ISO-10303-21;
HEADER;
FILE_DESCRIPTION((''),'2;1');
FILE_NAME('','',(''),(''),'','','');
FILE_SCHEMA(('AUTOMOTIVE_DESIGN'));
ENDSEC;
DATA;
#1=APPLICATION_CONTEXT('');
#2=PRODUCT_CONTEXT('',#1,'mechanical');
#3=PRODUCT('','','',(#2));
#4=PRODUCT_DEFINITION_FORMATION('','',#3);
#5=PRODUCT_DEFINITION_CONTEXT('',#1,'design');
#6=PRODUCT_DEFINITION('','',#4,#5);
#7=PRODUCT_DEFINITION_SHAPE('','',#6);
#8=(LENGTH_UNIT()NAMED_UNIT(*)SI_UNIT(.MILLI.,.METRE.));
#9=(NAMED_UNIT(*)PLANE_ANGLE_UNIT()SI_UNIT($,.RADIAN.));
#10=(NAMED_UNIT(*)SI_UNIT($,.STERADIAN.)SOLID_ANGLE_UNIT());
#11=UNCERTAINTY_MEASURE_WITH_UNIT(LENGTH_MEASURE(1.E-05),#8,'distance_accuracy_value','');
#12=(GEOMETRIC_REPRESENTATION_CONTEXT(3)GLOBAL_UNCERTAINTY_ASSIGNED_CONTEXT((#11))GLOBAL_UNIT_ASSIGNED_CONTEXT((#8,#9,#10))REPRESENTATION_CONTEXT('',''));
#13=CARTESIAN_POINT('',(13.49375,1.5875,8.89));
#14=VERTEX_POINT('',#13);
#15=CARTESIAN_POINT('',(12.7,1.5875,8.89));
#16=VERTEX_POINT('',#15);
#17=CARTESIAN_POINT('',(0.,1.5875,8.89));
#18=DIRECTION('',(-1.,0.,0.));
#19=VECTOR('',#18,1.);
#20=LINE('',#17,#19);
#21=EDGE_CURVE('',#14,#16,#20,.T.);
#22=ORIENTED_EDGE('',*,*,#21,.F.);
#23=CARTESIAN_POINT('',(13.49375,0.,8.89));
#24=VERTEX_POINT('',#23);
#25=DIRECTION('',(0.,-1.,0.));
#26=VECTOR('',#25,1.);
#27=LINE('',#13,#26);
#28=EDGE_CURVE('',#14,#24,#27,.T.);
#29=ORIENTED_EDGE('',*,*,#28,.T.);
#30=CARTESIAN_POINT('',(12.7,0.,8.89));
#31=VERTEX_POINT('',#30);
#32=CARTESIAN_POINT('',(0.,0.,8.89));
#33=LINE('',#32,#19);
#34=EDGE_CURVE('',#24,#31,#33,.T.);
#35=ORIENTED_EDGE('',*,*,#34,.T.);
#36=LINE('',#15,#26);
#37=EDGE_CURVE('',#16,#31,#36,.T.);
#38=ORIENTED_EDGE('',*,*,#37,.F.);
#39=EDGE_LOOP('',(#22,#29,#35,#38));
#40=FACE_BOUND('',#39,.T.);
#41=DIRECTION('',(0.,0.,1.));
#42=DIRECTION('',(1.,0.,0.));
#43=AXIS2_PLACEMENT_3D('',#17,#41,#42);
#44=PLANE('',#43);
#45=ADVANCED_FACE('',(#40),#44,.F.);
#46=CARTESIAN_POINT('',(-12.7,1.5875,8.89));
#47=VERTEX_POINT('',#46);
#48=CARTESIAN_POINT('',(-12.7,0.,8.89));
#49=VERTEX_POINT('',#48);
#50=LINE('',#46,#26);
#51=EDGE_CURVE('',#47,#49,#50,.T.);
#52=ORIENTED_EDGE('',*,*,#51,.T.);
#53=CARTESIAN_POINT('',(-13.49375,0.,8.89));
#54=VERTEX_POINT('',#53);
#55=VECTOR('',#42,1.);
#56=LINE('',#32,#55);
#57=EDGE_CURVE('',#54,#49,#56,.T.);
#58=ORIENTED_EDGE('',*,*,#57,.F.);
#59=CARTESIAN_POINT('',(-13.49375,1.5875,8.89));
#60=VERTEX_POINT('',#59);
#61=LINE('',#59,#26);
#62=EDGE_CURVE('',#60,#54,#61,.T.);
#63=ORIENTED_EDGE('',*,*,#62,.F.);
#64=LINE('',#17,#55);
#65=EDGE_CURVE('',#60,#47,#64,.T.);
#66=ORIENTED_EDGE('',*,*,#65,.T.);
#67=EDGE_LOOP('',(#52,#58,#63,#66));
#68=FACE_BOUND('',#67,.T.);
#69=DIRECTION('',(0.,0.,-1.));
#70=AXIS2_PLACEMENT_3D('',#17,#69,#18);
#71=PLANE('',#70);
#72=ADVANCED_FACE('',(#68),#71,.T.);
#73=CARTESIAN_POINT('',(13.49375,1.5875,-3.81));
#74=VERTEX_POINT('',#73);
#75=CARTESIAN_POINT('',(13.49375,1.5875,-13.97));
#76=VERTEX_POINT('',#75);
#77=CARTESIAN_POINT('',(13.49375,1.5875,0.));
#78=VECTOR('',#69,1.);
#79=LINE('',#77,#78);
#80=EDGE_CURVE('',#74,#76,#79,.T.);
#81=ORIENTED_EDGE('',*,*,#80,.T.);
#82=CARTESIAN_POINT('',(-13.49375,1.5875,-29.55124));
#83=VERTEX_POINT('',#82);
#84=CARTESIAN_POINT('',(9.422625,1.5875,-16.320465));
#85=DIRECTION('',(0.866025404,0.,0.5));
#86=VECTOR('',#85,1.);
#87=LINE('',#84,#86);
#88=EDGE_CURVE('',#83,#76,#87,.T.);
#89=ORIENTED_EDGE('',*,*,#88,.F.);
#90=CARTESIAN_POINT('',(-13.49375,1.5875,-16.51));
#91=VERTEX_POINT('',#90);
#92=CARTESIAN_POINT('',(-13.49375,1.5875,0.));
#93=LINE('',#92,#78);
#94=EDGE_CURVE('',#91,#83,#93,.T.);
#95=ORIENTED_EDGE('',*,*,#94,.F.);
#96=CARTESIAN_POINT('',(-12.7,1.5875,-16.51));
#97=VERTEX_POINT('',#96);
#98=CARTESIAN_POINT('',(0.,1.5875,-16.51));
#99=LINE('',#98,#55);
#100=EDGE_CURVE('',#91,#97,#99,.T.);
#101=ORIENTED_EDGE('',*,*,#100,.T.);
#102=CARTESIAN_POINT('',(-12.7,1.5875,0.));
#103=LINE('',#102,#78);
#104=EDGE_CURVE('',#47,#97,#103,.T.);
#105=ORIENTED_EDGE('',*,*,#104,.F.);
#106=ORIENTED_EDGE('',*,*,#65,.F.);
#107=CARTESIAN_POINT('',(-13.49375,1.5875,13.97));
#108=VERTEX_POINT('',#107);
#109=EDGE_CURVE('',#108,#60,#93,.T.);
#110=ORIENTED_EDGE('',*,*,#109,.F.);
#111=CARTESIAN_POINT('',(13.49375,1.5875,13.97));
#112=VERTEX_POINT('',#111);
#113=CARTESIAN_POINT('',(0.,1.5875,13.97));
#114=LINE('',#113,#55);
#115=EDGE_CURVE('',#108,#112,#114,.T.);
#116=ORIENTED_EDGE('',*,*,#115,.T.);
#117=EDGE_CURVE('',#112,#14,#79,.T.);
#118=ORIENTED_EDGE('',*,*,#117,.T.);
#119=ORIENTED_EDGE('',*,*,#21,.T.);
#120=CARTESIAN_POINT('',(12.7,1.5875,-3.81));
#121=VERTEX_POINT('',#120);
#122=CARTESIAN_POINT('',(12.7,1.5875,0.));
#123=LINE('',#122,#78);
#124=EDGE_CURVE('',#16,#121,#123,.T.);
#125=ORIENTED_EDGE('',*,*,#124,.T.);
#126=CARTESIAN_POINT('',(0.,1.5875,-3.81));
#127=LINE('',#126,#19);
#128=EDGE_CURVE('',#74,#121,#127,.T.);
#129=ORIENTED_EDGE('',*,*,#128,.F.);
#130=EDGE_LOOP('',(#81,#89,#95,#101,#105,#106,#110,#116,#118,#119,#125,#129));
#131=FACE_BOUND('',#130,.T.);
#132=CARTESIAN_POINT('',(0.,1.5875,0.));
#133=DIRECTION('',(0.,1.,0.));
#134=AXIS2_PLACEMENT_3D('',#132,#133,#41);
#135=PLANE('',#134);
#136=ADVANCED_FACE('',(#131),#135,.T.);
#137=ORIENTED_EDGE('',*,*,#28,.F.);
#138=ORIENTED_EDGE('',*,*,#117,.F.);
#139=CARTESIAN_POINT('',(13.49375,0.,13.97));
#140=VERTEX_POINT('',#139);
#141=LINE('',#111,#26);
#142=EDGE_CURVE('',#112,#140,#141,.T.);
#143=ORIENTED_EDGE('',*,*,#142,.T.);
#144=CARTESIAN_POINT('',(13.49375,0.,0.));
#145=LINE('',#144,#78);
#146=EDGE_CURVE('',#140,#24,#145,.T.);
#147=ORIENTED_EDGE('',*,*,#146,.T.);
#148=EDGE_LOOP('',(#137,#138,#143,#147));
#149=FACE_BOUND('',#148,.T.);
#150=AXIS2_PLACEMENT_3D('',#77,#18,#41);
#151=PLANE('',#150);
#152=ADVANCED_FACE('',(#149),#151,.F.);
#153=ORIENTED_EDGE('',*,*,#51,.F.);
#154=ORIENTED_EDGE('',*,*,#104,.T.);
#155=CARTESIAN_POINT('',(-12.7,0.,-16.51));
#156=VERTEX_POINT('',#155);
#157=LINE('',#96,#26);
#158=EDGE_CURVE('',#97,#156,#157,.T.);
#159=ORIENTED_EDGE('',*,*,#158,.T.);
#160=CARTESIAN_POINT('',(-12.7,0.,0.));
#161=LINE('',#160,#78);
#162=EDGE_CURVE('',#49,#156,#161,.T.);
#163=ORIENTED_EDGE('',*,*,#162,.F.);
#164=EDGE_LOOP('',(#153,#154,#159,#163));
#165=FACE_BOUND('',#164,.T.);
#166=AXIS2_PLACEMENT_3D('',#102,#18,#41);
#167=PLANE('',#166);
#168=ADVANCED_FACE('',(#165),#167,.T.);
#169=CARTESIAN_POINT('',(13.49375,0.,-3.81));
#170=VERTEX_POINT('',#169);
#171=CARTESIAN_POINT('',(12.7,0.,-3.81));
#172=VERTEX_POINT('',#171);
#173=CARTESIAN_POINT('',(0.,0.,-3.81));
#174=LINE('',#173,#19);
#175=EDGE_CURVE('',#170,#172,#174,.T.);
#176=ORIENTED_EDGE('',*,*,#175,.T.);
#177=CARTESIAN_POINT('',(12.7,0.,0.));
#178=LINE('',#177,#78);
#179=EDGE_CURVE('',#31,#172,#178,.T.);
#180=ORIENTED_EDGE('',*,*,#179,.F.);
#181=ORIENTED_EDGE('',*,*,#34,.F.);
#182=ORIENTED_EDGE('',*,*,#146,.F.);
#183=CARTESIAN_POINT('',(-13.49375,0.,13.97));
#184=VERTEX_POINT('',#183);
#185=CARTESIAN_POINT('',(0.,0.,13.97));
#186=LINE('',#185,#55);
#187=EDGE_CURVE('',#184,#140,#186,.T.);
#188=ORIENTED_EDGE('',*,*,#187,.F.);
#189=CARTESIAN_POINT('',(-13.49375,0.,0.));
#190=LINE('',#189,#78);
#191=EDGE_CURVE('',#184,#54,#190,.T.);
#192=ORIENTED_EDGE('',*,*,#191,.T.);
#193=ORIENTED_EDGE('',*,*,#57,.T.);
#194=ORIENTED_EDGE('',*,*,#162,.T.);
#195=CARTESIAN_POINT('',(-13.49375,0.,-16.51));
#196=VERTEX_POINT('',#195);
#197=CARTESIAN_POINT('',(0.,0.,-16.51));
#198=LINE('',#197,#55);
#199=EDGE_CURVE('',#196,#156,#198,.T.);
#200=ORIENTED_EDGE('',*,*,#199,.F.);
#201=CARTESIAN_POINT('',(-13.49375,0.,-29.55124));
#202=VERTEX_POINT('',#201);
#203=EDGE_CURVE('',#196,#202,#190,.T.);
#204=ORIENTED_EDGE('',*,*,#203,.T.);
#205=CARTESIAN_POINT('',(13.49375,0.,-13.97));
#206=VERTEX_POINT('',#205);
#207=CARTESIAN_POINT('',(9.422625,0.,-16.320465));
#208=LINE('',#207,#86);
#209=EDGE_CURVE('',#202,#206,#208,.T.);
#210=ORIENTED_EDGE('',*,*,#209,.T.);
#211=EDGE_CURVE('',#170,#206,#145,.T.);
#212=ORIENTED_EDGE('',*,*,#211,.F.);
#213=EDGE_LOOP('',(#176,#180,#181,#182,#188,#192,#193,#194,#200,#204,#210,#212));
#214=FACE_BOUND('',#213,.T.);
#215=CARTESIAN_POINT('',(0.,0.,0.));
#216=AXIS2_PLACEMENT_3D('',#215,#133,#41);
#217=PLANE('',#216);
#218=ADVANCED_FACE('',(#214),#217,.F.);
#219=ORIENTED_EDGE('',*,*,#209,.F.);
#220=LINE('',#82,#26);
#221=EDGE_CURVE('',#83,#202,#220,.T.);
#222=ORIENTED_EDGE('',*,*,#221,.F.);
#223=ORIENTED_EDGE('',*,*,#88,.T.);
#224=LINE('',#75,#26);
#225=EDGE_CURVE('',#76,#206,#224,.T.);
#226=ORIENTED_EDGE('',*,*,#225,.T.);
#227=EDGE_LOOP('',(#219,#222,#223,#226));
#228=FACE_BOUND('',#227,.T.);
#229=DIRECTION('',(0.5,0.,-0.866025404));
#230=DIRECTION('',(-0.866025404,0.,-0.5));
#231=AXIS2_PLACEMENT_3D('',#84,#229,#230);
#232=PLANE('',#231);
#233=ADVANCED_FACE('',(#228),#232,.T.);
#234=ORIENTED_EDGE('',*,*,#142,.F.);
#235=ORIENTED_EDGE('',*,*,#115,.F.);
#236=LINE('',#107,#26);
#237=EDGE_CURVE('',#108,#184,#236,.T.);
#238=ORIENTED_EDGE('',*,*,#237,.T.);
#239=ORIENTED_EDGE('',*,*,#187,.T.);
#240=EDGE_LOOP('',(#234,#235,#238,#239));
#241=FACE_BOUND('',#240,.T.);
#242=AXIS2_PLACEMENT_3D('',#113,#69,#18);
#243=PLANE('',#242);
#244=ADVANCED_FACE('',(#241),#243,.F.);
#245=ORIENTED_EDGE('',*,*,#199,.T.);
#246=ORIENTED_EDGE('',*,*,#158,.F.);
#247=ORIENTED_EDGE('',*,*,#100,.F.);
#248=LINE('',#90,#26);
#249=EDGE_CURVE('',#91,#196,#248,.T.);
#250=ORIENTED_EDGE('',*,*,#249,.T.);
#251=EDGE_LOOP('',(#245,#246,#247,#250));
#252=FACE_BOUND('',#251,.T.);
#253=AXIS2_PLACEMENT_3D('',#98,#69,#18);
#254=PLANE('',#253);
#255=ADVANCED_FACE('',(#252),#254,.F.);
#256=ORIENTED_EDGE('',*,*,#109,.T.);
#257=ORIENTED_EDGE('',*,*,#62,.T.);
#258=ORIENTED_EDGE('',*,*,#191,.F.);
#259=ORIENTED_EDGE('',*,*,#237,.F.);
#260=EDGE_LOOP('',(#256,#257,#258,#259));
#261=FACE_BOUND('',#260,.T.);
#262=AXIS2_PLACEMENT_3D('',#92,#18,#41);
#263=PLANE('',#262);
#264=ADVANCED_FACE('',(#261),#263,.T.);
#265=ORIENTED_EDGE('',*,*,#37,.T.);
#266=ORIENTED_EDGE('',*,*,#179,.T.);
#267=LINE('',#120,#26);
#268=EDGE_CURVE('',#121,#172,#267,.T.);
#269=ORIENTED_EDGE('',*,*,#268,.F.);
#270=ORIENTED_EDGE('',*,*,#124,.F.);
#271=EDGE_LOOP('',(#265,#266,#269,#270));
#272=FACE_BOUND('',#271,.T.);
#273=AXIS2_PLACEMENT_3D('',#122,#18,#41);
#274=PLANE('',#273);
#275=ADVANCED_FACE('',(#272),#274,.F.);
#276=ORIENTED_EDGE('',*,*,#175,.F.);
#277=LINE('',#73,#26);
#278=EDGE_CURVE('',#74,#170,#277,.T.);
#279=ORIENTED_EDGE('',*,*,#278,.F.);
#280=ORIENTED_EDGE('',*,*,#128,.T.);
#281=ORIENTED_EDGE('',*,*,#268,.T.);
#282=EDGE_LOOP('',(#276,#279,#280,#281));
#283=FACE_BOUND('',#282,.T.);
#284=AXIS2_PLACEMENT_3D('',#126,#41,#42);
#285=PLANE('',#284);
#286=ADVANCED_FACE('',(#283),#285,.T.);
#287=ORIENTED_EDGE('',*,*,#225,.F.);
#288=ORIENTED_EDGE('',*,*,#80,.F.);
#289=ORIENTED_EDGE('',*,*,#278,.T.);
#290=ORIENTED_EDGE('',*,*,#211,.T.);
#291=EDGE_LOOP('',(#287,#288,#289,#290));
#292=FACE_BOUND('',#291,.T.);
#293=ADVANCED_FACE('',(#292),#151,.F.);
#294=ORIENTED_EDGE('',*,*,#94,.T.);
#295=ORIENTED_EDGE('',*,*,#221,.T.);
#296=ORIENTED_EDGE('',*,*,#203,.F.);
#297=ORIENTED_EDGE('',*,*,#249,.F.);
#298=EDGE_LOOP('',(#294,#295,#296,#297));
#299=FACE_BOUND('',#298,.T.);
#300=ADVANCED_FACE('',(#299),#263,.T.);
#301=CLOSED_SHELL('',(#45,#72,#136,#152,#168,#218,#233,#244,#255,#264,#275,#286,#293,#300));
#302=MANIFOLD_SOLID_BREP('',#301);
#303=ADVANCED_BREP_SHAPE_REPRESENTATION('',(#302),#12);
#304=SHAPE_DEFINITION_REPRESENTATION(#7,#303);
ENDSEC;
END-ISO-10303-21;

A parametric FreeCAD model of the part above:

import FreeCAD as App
import Part
import Sketcher
from FreeCAD import Vector
Q = App.Units.Quantity


def add_polygon(sketch, points):
    """Adds a closed chain of lines whose ends are joined by coincident constraints."""
    first, n = sketch.GeometryCount, len(points)
    for a, b in zip(points, points[1:] + points[:1]):
        sketch.addGeometry(Part.LineSegment(App.Vector(*a, 0), App.Vector(*b, 0)), False)
    for i in range(n):
        sketch.addConstraint(Sketcher.Constraint("Coincident", first + i, 2, first + (i + 1) % n, 1))

doc = App.newDocument("Part")
params = doc.addObject("Spreadsheet::Sheet", "Params")
for row, (alias, value) in enumerate([
    ("sketch1_height", "1 in"),
    ("sketch1_height2", "0.2 in"),
    ("sketch1_height3", "0.5 in"),
    ("sketch1_height4", "0.4 in"),
    ("sketch1_width", "1.0625 in"),
    ("pad1_length", "0.0625 in"),
], start=1):
    params.set(f"A{row}", alias)
    params.set(f"B{row}", "=" + value)
    params.setAlias(f"B{row}", alias)

body = doc.addObject("PartDesign::Body", "Body")

# Sketch on XZ plane
sketch1 = doc.addObject("Sketcher::SketchObject", "Sketch")
body.addObject(sketch1)
sketch1.AttachmentSupport = (doc.XZ_Plane, [""])
sketch1.MapMode = "FlatFace"
add_polygon(sketch1, [(-13.49375, 8.89), (-13.49375, 13.97), (13.49375, 13.97), (13.49375, 8.89), (12.7, 8.89), (12.7, -3.81), (13.49375, -3.81), (13.49375, -13.97), (-13.49375, -29.55124), (-13.49375, -16.51), (-12.7, -16.51), (-12.7, 8.89)])  # lines 0-11
sketch1.addConstraint(Sketcher.Constraint("Vertical", 0))
sketch1.addConstraint(Sketcher.Constraint("Horizontal", 1))
sketch1.addConstraint(Sketcher.Constraint("Vertical", 2))
sketch1.addConstraint(Sketcher.Constraint("Horizontal", 3))
sketch1.addConstraint(Sketcher.Constraint("Vertical", 4))
sketch1.addConstraint(Sketcher.Constraint("Horizontal", 5))
sketch1.addConstraint(Sketcher.Constraint("Vertical", 6))
sketch1.addConstraint(Sketcher.Constraint("Vertical", 8))
sketch1.addConstraint(Sketcher.Constraint("Horizontal", 9))
sketch1.addConstraint(Sketcher.Constraint("Vertical", 10))
sketch1.addConstraint(Sketcher.Constraint("Horizontal", 11))
sketch1.addConstraint(Sketcher.Constraint("Symmetric", 0, 2, 6, 2, -1, 1))
sketch1.addConstraint(Sketcher.Constraint("Symmetric", 3, 2, 10, 2, -2))
sketch1.addConstraint(Sketcher.Constraint("Vertical", 2, 2, 5, 2))
sketch1.addConstraint(Sketcher.Constraint("Vertical", 0, 2, 7, 2))
sketch1.addConstraint(Sketcher.Constraint("DistanceY", 10, 1, 10, 2, Q("1 in")))
sketch1.addConstraint(Sketcher.Constraint("DistanceY", 0, 1, 0, 2, Q("0.2 in")))
sketch1.addConstraint(Sketcher.Constraint("DistanceY", 4, 2, 4, 1, Q("0.5 in")))
sketch1.addConstraint(Sketcher.Constraint("DistanceY", 6, 2, 6, 1, Q("0.4 in")))
sketch1.addConstraint(Sketcher.Constraint("Angle", 7, Q("-150 deg")))
sketch1.addConstraint(Sketcher.Constraint("DistanceX", 9, 2, 4, 2, Q("1 in")))
sketch1.addConstraint(Sketcher.Constraint("DistanceX", 1, 1, 1, 2, Q("1.0625 in")))
sketch1.setExpression("Constraints[27]", "Params.sketch1_height")
sketch1.setExpression("Constraints[28]", "Params.sketch1_height2")
sketch1.setExpression("Constraints[29]", "Params.sketch1_height3")
sketch1.setExpression("Constraints[30]", "Params.sketch1_height4")
sketch1.setExpression("Constraints[33]", "Params.sketch1_width")
pad1 = doc.addObject("PartDesign::Pad", "Pad")
body.addObject(pad1)
pad1.Profile = sketch1
pad1.setExpression("Length", "Params.pad1_length")
pad1.Reversed = True

doc.recompute()
